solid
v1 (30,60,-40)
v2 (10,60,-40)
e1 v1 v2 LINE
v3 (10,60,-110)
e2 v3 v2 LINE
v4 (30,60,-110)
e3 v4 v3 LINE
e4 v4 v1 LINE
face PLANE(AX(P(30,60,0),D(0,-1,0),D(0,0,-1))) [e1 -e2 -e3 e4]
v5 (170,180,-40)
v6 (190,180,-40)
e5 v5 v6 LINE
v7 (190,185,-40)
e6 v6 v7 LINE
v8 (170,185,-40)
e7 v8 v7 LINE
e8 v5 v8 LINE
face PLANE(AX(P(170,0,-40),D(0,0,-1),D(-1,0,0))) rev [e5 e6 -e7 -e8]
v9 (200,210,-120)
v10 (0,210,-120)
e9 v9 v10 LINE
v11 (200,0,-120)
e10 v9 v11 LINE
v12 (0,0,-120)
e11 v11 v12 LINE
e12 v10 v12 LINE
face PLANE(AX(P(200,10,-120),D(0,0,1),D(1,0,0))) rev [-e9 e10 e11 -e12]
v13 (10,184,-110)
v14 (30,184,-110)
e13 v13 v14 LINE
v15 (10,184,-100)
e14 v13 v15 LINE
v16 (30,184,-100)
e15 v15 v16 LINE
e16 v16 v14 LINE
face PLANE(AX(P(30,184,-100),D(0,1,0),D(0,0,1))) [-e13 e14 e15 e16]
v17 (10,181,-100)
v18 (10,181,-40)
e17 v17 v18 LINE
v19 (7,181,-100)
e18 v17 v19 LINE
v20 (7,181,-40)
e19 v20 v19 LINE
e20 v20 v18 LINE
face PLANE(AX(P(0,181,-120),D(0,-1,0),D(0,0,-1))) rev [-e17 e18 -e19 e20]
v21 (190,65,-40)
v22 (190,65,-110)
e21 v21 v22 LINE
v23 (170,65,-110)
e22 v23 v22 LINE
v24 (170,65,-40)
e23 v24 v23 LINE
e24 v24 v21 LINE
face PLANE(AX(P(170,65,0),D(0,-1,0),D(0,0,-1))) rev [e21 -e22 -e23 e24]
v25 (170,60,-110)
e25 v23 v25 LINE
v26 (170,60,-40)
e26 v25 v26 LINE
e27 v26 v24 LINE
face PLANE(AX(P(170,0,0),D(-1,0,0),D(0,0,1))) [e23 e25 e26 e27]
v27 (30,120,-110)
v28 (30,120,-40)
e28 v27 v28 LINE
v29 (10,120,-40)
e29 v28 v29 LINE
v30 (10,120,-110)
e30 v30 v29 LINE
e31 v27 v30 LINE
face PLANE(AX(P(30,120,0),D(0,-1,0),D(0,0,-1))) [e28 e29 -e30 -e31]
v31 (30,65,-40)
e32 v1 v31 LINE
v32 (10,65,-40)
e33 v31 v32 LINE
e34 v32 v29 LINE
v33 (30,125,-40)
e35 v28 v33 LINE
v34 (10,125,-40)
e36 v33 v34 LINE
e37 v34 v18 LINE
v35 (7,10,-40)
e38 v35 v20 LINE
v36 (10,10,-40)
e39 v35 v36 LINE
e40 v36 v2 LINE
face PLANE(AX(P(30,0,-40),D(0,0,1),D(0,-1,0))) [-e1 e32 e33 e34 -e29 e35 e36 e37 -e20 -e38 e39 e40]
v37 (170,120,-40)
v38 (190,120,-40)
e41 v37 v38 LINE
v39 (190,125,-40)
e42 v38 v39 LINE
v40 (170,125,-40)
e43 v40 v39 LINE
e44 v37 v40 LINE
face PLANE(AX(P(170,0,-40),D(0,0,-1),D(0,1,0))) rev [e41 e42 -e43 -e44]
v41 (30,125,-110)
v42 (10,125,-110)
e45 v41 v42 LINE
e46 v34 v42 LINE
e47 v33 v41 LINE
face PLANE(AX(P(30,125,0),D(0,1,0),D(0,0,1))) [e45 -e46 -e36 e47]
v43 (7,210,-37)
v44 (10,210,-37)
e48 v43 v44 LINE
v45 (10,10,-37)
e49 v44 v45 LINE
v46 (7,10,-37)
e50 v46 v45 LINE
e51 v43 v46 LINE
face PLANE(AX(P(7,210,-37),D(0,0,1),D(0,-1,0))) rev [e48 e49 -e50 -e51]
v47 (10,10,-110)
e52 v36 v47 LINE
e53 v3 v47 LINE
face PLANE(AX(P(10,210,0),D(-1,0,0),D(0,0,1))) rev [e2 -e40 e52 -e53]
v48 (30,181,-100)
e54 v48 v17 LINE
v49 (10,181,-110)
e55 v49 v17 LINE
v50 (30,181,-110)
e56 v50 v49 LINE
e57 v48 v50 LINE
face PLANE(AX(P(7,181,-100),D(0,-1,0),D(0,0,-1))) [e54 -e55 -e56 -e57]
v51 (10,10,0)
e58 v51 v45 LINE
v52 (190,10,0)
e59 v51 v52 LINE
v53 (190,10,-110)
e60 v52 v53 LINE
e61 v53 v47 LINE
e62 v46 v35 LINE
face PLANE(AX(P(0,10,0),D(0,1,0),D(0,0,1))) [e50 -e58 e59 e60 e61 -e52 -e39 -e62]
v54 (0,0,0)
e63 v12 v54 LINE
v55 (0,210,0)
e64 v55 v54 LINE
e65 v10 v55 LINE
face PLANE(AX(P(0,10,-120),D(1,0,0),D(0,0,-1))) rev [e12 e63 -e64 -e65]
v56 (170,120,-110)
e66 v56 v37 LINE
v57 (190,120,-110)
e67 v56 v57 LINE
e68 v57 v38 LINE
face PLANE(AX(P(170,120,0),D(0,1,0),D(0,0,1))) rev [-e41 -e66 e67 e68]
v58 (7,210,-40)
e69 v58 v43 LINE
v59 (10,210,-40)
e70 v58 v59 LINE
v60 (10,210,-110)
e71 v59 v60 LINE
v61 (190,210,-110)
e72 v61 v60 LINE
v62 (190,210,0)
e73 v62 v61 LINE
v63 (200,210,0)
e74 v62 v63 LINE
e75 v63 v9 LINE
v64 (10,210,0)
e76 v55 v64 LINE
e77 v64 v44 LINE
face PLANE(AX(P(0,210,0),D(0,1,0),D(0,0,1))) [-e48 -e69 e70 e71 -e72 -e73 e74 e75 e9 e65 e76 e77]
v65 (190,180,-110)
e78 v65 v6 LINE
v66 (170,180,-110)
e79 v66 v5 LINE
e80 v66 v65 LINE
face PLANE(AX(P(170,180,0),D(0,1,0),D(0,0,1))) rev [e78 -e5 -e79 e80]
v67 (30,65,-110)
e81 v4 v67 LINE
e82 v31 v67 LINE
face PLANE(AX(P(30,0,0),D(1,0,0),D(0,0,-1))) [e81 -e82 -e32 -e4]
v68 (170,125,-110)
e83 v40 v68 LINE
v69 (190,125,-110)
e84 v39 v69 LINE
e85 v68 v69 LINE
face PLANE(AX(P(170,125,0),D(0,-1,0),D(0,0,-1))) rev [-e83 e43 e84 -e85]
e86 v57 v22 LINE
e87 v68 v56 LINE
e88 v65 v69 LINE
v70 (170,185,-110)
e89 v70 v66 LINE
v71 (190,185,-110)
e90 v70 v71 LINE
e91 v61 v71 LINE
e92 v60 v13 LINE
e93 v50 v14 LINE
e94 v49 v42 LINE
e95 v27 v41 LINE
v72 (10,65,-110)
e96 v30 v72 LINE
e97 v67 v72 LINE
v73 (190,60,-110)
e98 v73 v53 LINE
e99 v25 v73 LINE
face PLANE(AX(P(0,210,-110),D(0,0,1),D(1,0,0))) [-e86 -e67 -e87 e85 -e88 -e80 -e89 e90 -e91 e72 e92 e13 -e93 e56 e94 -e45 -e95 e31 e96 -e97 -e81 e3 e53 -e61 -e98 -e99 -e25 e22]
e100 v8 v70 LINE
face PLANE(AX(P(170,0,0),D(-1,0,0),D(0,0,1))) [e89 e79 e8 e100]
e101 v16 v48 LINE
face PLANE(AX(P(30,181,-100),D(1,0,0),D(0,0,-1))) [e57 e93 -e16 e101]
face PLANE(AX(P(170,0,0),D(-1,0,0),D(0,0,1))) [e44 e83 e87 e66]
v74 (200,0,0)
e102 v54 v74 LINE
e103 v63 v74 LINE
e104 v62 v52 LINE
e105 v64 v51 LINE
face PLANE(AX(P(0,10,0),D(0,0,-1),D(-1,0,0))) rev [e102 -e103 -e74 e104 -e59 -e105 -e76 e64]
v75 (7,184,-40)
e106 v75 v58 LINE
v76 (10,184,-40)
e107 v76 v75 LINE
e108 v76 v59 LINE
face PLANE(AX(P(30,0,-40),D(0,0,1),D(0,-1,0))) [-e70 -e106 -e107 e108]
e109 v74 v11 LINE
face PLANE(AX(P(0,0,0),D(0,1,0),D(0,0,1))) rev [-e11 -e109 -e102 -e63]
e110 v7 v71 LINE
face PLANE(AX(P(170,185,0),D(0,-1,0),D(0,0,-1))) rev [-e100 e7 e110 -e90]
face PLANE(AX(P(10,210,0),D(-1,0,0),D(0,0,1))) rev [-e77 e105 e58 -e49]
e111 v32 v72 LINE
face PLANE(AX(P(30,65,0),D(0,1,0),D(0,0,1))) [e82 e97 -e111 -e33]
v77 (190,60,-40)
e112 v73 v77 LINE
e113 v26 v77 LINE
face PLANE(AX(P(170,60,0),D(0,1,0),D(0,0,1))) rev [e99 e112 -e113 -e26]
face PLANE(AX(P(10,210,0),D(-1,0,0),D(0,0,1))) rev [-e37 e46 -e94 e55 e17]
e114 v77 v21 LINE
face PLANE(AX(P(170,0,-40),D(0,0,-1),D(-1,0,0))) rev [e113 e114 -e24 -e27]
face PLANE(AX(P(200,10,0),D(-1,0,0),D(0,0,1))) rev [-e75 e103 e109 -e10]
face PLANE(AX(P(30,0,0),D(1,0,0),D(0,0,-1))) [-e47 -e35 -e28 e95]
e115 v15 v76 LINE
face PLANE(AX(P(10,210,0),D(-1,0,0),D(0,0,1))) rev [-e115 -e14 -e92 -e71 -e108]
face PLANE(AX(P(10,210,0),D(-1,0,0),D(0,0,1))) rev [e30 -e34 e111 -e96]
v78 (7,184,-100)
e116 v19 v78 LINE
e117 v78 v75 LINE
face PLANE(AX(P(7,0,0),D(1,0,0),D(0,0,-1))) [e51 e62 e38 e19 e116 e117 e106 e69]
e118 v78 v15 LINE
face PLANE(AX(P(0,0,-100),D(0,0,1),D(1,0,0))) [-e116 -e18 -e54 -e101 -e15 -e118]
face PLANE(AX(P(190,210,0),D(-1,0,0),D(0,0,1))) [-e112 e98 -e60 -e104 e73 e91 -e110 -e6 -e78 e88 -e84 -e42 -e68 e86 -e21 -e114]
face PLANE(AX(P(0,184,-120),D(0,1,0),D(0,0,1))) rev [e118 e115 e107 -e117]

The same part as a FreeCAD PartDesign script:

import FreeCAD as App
import Part
import Sketcher
Q = App.Units.Quantity


def add_polygon(sketch, points):
    """Adds a closed chain of lines whose ends are joined by coincident constraints."""
    first, n = sketch.GeometryCount, len(points)
    for a, b in zip(points, points[1:] + points[:1]):
        sketch.addGeometry(Part.LineSegment(App.Vector(*a, 0), App.Vector(*b, 0)), False)
    for i in range(n):
        sketch.addConstraint(Sketcher.Constraint("Coincident", first + i, 2, first + (i + 1) % n, 1))

doc = App.newDocument("Part")
params = doc.addObject("Spreadsheet::Sheet", "Params")
for row, (alias, value) in enumerate([
    ("sketch1_width", "200 mm"),
    ("sketch1_height", "120 mm"),
    ("pad1_length", "10 mm"),
    ("sketch2_width", "10 mm"),
    ("sketch2_width2", "180 mm"),
    ("sketch2_height", "110 mm"),
    ("sketch2_height2", "120 mm"),
    ("pad2_length", "200 mm"),
    ("sketch3_width", "5 mm"),
    ("sketch3_height", "70 mm"),
    ("pad3_length", "20 mm"),
    ("sketch4_width", "5 mm"),
    ("sketch4_height", "70 mm"),
    ("pad4_length", "20 mm"),
    ("sketch5_width", "20 mm"),
    ("sketch5_height", "3 mm"),
    ("pocket1_length", "80 mm"),
    ("sketch6_width", "200 mm"),
    ("sketch6_height", "3 mm"),
    ("pocket2_length", "3 mm"),
    ("sketch7_width", "3 mm"),
    ("sketch7_height", "80 mm"),
    ("pocket3_length", "3 mm"),
    ("sketch8_width", "20 mm"),
    ("sketch8_height", "1 mm"),
    ("pocket4_length", "70 mm"),
    ("sketch9_width", "23 mm"),
    ("sketch9_height", "3 mm"),
    ("pad5_length", "20 mm"),
], start=1):
    params.set(f"A{row}", alias)
    params.set(f"B{row}", "=" + value)
    params.setAlias(f"B{row}", alias)

body = doc.addObject("PartDesign::Body", "Body")

# Sketch on XZ plane
sketch1 = body.newObject("Sketcher::SketchObject", "Sketch")
sketch1.AttachmentSupport = (doc.getObject("XZ_Plane"), [""])
sketch1.MapMode = "FlatFace"
add_polygon(sketch1, [(0, -120), (0, 0), (200, 0), (200, -120)])  # lines 0-3
sketch1.addConstraint([
    Sketcher.Constraint("Vertical", 0),
    Sketcher.Constraint("Horizontal", 1),
    Sketcher.Constraint("Vertical", 2),
    Sketcher.Constraint("Horizontal", 3),
    Sketcher.Constraint("Coincident", 0, 2, -1, 1),
    Sketcher.Constraint("DistanceX", 1, 1, 1, 2, Q("200 mm")),
    Sketcher.Constraint("DistanceY", 0, 1, 0, 2, Q("120 mm")),
])
sketch1.setExpression("Constraints[9]", "Params.sketch1_width")
sketch1.setExpression("Constraints[10]", "Params.sketch1_height")
pad1 = body.newObject("PartDesign::Pad", "Pad")
pad1.Profile = sketch1
pad1.setExpression("Length", "Params.pad1_length")
pad1.Reversed = True

# Sketch on XZ plane
sketch2 = body.newObject("Sketcher::SketchObject", "Sketch001")
sketch2.AttachmentSupport = (doc.getObject("XZ_Plane"), [""])
sketch2.MapMode = "FlatFace"
sketch2.AttachmentOffset = App.Placement(App.Vector(0, 0, -10), App.Rotation())
add_polygon(sketch2, [(0, 0), (10, 0), (10, -110), (190, -110), (190, 0), (200, 0), (200, -120), (0, -120)])  # lines 0-7
sketch2.addConstraint([
    Sketcher.Constraint("Horizontal", 0),
    Sketcher.Constraint("Vertical", 1),
    Sketcher.Constraint("Horizontal", 2),
    Sketcher.Constraint("Vertical", 3),
    Sketcher.Constraint("Horizontal", 4),
    Sketcher.Constraint("Vertical", 5),
    Sketcher.Constraint("Horizontal", 6),
    Sketcher.Constraint("Vertical", 7),
    Sketcher.Constraint("Coincident", 7, 2, -1, 1),
    Sketcher.Constraint("PointOnObject", 3, 2, -1),
    Sketcher.Constraint("Equal", 0, 4),
    Sketcher.Constraint("DistanceX", 0, 1, 0, 2, Q("10 mm")),
    Sketcher.Constraint("DistanceX", 2, 1, 2, 2, Q("180 mm")),
    Sketcher.Constraint("DistanceY", 1, 2, 1, 1, Q("110 mm")),
    Sketcher.Constraint("DistanceY", 5, 2, 5, 1, Q("120 mm")),
])
sketch2.setExpression("Constraints[19]", "Params.sketch2_width")
sketch2.setExpression("Constraints[20]", "Params.sketch2_width2")
sketch2.setExpression("Constraints[21]", "Params.sketch2_height")
sketch2.setExpression("Constraints[22]", "Params.sketch2_height2")
pad2 = body.newObject("PartDesign::Pad", "Pad001")
pad2.Profile = sketch2
pad2.setExpression("Length", "Params.pad2_length")
pad2.Reversed = True

# Sketch on YZ plane
sketch3 = body.newObject("Sketcher::SketchObject", "Sketch002")
sketch3.AttachmentSupport = (doc.getObject("YZ_Plane"), [""])
sketch3.MapMode = "FlatFace"
sketch3.AttachmentOffset = App.Placement(App.Vector(0, 0, 10), App.Rotation())
add_polygon(sketch3, [(185, -40), (180, -40), (180, -110), (185, -110)])  # lines 0-3
add_polygon(sketch3, [(125, -40), (120, -40), (120, -110), (125, -110)])  # lines 4-7
add_polygon(sketch3, [(65, -40), (60, -40), (60, -110), (65, -110)])  # lines 8-11
sketch3.addConstraint([
    Sketcher.Constraint("Horizontal", 0),
    Sketcher.Constraint("Vertical", 1),
    Sketcher.Constraint("Horizontal", 2),
    Sketcher.Constraint("Vertical", 3),
    Sketcher.Constraint("Horizontal", 4),
    Sketcher.Constraint("Vertical", 5),
    Sketcher.Constraint("Horizontal", 6),
    Sketcher.Constraint("Vertical", 7),
    Sketcher.Constraint("Horizontal", 8),
    Sketcher.Constraint("Vertical", 9),
    Sketcher.Constraint("Horizontal", 10),
    Sketcher.Constraint("Vertical", 11),
    Sketcher.Constraint("Horizontal", 3, 2, 4, 2),
    Sketcher.Constraint("Horizontal", 2, 2, 5, 2),
    Sketcher.Constraint("Horizontal", 7, 2, 8, 2),
    Sketcher.Constraint("Horizontal", 6, 2, 9, 2),
    Sketcher.Constraint("Equal", 2, 4),
    Sketcher.Constraint("Equal", 6, 8),
    Sketcher.Constraint("DistanceX", 0, 2, 0, 1, Q("5 mm")),
    Sketcher.Constraint("DistanceY", 1, 2, 1, 1, Q("70 mm")),
    Sketcher.Constraint("DistanceX", -1, 1, 0, 2, Q("180 mm")),
    Sketcher.Constraint("DistanceY", 0, 2, -1, 1, Q("40 mm")),
    Sketcher.Constraint("DistanceX", -1, 1, 4, 2, Q("120 mm")),
    Sketcher.Constraint("DistanceX", -1, 1, 8, 2, Q("60 mm")),
])
sketch3.setExpression("Constraints[30]", "Params.sketch3_width")
sketch3.setExpression("Constraints[31]", "Params.sketch3_height")
pad3 = body.newObject("PartDesign::Pad", "Pad002")
pad3.Profile = sketch3
pad3.setExpression("Length", "Params.pad3_length")

# Sketch on YZ plane
sketch4 = body.newObject("Sketcher::SketchObject", "Sketch003")
sketch4.AttachmentSupport = (doc.getObject("YZ_Plane"), [""])
sketch4.MapMode = "FlatFace"
sketch4.AttachmentOffset = App.Placement(App.Vector(0, 0, 190), App.Rotation())
add_polygon(sketch4, [(185, -110), (180, -110), (180, -40), (185, -40)])  # lines 0-3
add_polygon(sketch4, [(125, -110), (120, -110), (120, -40), (125, -40)])  # lines 4-7
add_polygon(sketch4, [(65, -110), (60, -110), (60, -40), (65, -40)])  # lines 8-11
sketch4.addConstraint([
    Sketcher.Constraint("Horizontal", 0),
    Sketcher.Constraint("Vertical", 1),
    Sketcher.Constraint("Horizontal", 2),
    Sketcher.Constraint("Vertical", 3),
    Sketcher.Constraint("Horizontal", 4),
    Sketcher.Constraint("Vertical", 5),
    Sketcher.Constraint("Horizontal", 6),
    Sketcher.Constraint("Vertical", 7),
    Sketcher.Constraint("Horizontal", 8),
    Sketcher.Constraint("Vertical", 9),
    Sketcher.Constraint("Horizontal", 10),
    Sketcher.Constraint("Vertical", 11),
    Sketcher.Constraint("Horizontal", 3, 2, 4, 2),
    Sketcher.Constraint("Horizontal", 2, 2, 5, 2),
    Sketcher.Constraint("Horizontal", 7, 2, 8, 2),
    Sketcher.Constraint("Horizontal", 6, 2, 9, 2),
    Sketcher.Constraint("Equal", 2, 4),
    Sketcher.Constraint("Equal", 6, 8),
    Sketcher.Constraint("DistanceX", 0, 2, 0, 1, Q("5 mm")),
    Sketcher.Constraint("DistanceY", 1, 1, 1, 2, Q("70 mm")),
    Sketcher.Constraint("DistanceX", -1, 1, 0, 2, Q("180 mm")),
    Sketcher.Constraint("DistanceY", 0, 2, -1, 1, Q("110 mm")),
    Sketcher.Constraint("DistanceX", -1, 1, 4, 2, Q("120 mm")),
    Sketcher.Constraint("DistanceX", -1, 1, 8, 2, Q("60 mm")),
])
sketch4.setExpression("Constraints[30]", "Params.sketch4_width")
sketch4.setExpression("Constraints[31]", "Params.sketch4_height")
pad4 = body.newObject("PartDesign::Pad", "Pad003")
pad4.Profile = sketch4
pad4.setExpression("Length", "Params.pad4_length")
pad4.Reversed = True

# Sketch on XY plane
sketch5 = body.newObject("Sketcher::SketchObject", "Sketch004")
sketch5.AttachmentSupport = (doc.getObject("XY_Plane"), [""])
sketch5.MapMode = "FlatFace"
sketch5.AttachmentOffset = App.Placement(App.Vector(0, 0, -40), App.Rotation())
add_polygon(sketch5, [(10, 184), (10, 181), (30, 181), (30, 184)])  # lines 0-3
sketch5.addConstraint([
    Sketcher.Constraint("Vertical", 0),
    Sketcher.Constraint("Horizontal", 1),
    Sketcher.Constraint("Vertical", 2),
    Sketcher.Constraint("Horizontal", 3),
    Sketcher.Constraint("DistanceX", 1, 1, 1, 2, Q("20 mm")),
    Sketcher.Constraint("DistanceY", 0, 2, 0, 1, Q("3 mm")),
    Sketcher.Constraint("DistanceX", -1, 1, 0, 2, Q("10 mm")),
    Sketcher.Constraint("DistanceY", -1, 1, 0, 2, Q("181 mm")),
])
sketch5.setExpression("Constraints[8]", "Params.sketch5_width")
sketch5.setExpression("Constraints[9]", "Params.sketch5_height")
pocket1 = body.newObject("PartDesign::Pocket", "Pocket")
pocket1.Profile = sketch5
pocket1.setExpression("Length", "Params.pocket1_length")

# Sketch on YZ plane
sketch6 = body.newObject("Sketcher::SketchObject", "Sketch005")
sketch6.AttachmentSupport = (doc.getObject("YZ_Plane"), [""])
sketch6.MapMode = "FlatFace"
sketch6.AttachmentOffset = App.Placement(App.Vector(0, 0, 10), App.Rotation())
add_polygon(sketch6, [(210, -40), (210, -37), (10, -37), (10, -40)])  # lines 0-3
sketch6.addConstraint([
    Sketcher.Constraint("Vertical", 0),
    Sketcher.Constraint("Horizontal", 1),
    Sketcher.Constraint("Vertical", 2),
    Sketcher.Constraint("Horizontal", 3),
    Sketcher.Constraint("DistanceX", 1, 2, 1, 1, Q("200 mm")),
    Sketcher.Constraint("DistanceY", 0, 1, 0, 2, Q("3 mm")),
    Sketcher.Constraint("DistanceX", -1, 1, 0, 2, Q("210 mm")),
    Sketcher.Constraint("DistanceY", 0, 2, -1, 1, Q("37 mm")),
])
sketch6.setExpression("Constraints[8]", "Params.sketch6_width")
sketch6.setExpression("Constraints[9]", "Params.sketch6_height")
pocket2 = body.newObject("PartDesign::Pocket", "Pocket001")
pocket2.Profile = sketch6
pocket2.setExpression("Length", "Params.pocket2_length")

# Sketch on YZ plane
sketch7 = body.newObject("Sketcher::SketchObject", "Sketch006")
sketch7.AttachmentSupport = (doc.getObject("YZ_Plane"), [""])
sketch7.MapMode = "FlatFace"
sketch7.AttachmentOffset = App.Placement(App.Vector(0, 0, 10), App.Rotation())
add_polygon(sketch7, [(184, -40), (181, -40), (181, -120), (184, -120)])  # lines 0-3
sketch7.addConstraint([
    Sketcher.Constraint("Horizontal", 0),
    Sketcher.Constraint("Vertical", 1),
    Sketcher.Constraint("Horizontal", 2),
    Sketcher.Constraint("Vertical", 3),
    Sketcher.Constraint("DistanceX", 0, 2, 0, 1, Q("3 mm")),
    Sketcher.Constraint("DistanceY", 1, 2, 1, 1, Q("80 mm")),
    Sketcher.Constraint("DistanceX", -1, 1, 0, 2, Q("181 mm")),
    Sketcher.Constraint("DistanceY", 0, 2, -1, 1, Q("40 mm")),
])
sketch7.setExpression("Constraints[8]", "Params.sketch7_width")
sketch7.setExpression("Constraints[9]", "Params.sketch7_height")
pocket3 = body.newObject("PartDesign::Pocket", "Pocket002")
pocket3.Profile = sketch7
pocket3.setExpression("Length", "Params.pocket3_length")

# Sketch on XY plane
sketch8 = body.newObject("Sketcher::SketchObject", "Sketch007")
sketch8.AttachmentSupport = (doc.getObject("XY_Plane"), [""])
sketch8.MapMode = "FlatFace"
sketch8.AttachmentOffset = App.Placement(App.Vector(0, 0, -40), App.Rotation())
add_polygon(sketch8, [(10, 185), (10, 184), (30, 184), (30, 185)])  # lines 0-3
add_polygon(sketch8, [(10, 181), (10, 180), (30, 180), (30, 181)])  # lines 4-7
sketch8.addConstraint([
    Sketcher.Constraint("Vertical", 0),
    Sketcher.Constraint("Horizontal", 1),
    Sketcher.Constraint("Vertical", 2),
    Sketcher.Constraint("Horizontal", 3),
    Sketcher.Constraint("Vertical", 4),
    Sketcher.Constraint("Horizontal", 5),
    Sketcher.Constraint("Vertical", 6),
    Sketcher.Constraint("Horizontal", 7),
    Sketcher.Constraint("Vertical", 3, 2, 4, 2),
    Sketcher.Constraint("Vertical", 2, 2, 5, 2),
    Sketcher.Constraint("Equal", 2, 4),
    Sketcher.Constraint("DistanceX", 1, 1, 1, 2, Q("20 mm")),
    Sketcher.Constraint("DistanceY", 0, 2, 0, 1, Q("1 mm")),
    Sketcher.Constraint("DistanceX", -1, 1, 0, 2, Q("10 mm")),
    Sketcher.Constraint("DistanceY", -1, 1, 0, 2, Q("184 mm")),
    Sketcher.Constraint("DistanceY", -1, 1, 4, 2, Q("180 mm")),
])
sketch8.setExpression("Constraints[19]", "Params.sketch8_width")
sketch8.setExpression("Constraints[20]", "Params.sketch8_height")
pocket4 = body.newObject("PartDesign::Pocket", "Pocket003")
pocket4.Profile = sketch8
pocket4.setExpression("Length", "Params.pocket4_length")

# Sketch on XY plane
sketch9 = body.newObject("Sketcher::SketchObject", "Sketch008")
sketch9.AttachmentSupport = (doc.getObject("XY_Plane"), [""])
sketch9.MapMode = "FlatFace"
sketch9.AttachmentOffset = App.Placement(App.Vector(0, 0, -120), App.Rotation())
add_polygon(sketch9, [(30, 184), (30, 181), (7, 181), (7, 184)])  # lines 0-3
sketch9.addConstraint([
    Sketcher.Constraint("Vertical", 0),
    Sketcher.Constraint("Horizontal", 1),
    Sketcher.Constraint("Vertical", 2),
    Sketcher.Constraint("Horizontal", 3),
    Sketcher.Constraint("DistanceX", 1, 2, 1, 1, Q("23 mm")),
    Sketcher.Constraint("DistanceY", 0, 2, 0, 1, Q("3 mm")),
    Sketcher.Constraint("DistanceX", -1, 1, 0, 2, Q("30 mm")),
    Sketcher.Constraint("DistanceY", -1, 1, 0, 2, Q("181 mm")),
])
sketch9.setExpression("Constraints[8]", "Params.sketch9_width")
sketch9.setExpression("Constraints[9]", "Params.sketch9_height")
pad5 = body.newObject("PartDesign::Pad", "Pad004")
pad5.Profile = sketch9
pad5.setExpression("Length", "Params.pad5_length")

doc.recompute()
